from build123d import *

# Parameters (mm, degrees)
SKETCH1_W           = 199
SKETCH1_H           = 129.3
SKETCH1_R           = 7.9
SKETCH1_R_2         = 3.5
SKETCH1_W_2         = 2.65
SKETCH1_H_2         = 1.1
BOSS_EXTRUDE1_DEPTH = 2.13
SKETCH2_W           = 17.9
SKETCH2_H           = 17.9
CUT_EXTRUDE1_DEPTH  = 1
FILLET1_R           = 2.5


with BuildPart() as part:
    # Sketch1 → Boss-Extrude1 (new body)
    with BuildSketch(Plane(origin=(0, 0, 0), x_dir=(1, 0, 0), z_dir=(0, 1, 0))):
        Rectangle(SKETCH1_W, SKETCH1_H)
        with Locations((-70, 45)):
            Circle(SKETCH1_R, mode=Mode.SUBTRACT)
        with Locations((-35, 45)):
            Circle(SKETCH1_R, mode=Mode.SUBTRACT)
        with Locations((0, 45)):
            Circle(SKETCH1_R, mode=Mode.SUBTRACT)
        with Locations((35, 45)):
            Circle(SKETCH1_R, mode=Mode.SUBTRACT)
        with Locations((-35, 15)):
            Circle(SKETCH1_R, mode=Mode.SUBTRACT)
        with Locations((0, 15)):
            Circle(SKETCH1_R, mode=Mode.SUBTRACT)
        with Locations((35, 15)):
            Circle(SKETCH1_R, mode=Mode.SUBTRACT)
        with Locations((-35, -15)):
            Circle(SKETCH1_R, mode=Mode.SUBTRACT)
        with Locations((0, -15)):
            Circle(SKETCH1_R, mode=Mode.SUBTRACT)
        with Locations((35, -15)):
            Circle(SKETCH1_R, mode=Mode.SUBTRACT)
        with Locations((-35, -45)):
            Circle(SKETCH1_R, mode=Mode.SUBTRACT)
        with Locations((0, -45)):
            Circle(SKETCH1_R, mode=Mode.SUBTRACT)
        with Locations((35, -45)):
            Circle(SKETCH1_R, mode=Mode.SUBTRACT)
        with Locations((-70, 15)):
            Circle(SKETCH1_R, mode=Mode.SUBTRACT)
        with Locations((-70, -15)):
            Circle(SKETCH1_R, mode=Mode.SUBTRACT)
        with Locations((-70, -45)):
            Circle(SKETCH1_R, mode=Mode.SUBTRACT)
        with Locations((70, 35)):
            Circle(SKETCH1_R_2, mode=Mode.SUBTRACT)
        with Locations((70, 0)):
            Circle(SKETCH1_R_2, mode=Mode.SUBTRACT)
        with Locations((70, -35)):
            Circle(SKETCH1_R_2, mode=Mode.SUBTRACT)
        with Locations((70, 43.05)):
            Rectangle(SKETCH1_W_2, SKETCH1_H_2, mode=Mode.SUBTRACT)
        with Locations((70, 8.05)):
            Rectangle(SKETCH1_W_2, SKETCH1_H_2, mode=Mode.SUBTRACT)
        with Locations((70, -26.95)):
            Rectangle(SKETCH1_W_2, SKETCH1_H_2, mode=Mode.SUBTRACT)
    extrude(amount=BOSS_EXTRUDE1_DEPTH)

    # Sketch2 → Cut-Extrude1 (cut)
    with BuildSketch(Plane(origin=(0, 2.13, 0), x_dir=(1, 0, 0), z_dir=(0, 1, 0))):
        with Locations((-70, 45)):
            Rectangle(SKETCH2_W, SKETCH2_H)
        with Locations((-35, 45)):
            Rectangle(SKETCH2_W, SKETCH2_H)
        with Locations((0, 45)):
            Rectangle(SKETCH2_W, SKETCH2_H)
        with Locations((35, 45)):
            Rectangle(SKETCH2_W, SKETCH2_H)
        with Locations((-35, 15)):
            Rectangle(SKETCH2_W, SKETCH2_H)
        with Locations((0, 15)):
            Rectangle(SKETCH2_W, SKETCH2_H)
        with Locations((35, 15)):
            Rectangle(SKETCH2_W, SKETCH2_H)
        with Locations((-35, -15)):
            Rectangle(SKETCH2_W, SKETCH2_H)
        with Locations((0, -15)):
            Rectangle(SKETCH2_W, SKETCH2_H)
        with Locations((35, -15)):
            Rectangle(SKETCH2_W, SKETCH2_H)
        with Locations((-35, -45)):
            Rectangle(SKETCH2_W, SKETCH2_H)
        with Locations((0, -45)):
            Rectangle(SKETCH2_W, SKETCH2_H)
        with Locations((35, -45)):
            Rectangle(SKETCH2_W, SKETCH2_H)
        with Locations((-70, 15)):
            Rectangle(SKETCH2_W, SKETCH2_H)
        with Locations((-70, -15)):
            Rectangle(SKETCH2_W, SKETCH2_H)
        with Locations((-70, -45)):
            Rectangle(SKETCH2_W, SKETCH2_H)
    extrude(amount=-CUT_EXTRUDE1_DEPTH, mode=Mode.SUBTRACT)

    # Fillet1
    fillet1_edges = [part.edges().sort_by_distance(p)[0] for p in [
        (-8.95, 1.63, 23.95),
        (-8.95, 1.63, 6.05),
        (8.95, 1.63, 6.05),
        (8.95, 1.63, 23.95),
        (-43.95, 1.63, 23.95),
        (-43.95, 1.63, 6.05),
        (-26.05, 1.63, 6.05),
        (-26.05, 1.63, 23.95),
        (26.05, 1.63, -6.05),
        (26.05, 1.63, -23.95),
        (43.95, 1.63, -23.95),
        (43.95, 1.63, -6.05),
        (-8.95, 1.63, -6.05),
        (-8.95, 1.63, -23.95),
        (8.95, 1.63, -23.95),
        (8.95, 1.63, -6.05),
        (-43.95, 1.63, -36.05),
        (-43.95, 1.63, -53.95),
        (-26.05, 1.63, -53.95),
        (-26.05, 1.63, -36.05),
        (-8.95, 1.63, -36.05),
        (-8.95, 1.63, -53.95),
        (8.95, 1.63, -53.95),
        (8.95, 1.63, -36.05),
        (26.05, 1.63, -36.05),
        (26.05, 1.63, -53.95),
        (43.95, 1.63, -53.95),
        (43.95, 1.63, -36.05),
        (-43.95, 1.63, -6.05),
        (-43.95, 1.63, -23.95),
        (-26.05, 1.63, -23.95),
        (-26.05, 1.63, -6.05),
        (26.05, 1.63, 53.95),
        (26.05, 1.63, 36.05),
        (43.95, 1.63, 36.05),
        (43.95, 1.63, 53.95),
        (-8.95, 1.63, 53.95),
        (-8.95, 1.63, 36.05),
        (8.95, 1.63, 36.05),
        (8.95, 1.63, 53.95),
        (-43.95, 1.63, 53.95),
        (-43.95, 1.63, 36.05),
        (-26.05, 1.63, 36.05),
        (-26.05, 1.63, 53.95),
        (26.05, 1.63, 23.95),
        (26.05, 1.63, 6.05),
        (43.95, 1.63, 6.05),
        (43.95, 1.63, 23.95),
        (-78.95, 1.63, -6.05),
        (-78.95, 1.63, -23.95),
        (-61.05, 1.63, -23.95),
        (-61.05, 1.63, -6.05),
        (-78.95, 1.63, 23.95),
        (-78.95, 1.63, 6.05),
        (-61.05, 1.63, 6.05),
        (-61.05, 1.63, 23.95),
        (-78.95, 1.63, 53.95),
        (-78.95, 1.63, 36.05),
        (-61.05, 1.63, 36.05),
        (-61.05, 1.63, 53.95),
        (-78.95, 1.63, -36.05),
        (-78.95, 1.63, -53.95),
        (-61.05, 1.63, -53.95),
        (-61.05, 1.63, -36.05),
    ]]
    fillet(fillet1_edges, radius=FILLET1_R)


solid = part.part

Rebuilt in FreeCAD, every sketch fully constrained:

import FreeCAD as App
import Part
import Sketcher

V = App.Vector


def edges_at(feature, points):
    """Names of the edges that pass closest to the given points."""
    edges = feature.Shape.Edges
    near = lambda p: min(range(len(edges)), key=lambda i: edges[i].distToShape(Part.Vertex(*p))[0])
    return sorted({f"Edge{near(p) + 1}" for p in points})


def add_polygon(sketch, points):
    """Adds a closed chain of lines whose ends are joined by coincident constraints."""
    first, n = sketch.GeometryCount, len(points)
    for a, b in zip(points, points[1:] + points[:1]):
        sketch.addGeometry(Part.LineSegment(App.Vector(*a, 0), App.Vector(*b, 0)), False)
    for i in range(n):
        sketch.addConstraint(Sketcher.Constraint("Coincident", first + i, 2, first + (i + 1) % n, 1))

doc = App.newDocument("Part")
params = doc.addObject("Spreadsheet::Sheet", "Params")
for row, (alias, value) in enumerate([
    ("sketch1_diameter", "7 mm"),
    ("sketch1_diameter2", "15.8 mm"),
    ("sketch1_width", "199 mm"),
    ("sketch1_height", "129.3 mm"),
    ("sketch1_height2", "1.1 mm"),
    ("pad1_length", "2.13 mm"),
    ("sketch2_width", "17.9 mm"),
    ("pocket1_length", "1 mm"),
    ("fillet_radius", "2.5 mm"),
], start=1):
    params.set(f"A{row}", alias)
    params.set(f"B{row}", "=" + value)
    params.setAlias(f"B{row}", alias)

body = doc.addObject("PartDesign::Body", "Body")

# Sketch on XZ plane
sketch1 = body.newObject("Sketcher::SketchObject", "Sketch")
sketch1.AttachmentSupport = (doc.getObject("XZ_Plane"), [""])
sketch1.MapMode = "FlatFace"
add_polygon(sketch1, [(-99.5, -64.7), (-99.5, 64.7), (99.5, 64.7), (99.5, -64.7)])  # lines 0-3
sketch1.addGeometry(Part.Circle(V(-70, 45, 0), V(0, 0, 1), 7.9), False)  # 4
sketch1.addGeometry(Part.Circle(V(-35, 45, 0), V(0, 0, 1), 7.9), False)  # 5
sketch1.addGeometry(Part.Circle(V(-70, 15, 0), V(0, 0, 1), 7.9), False)  # 6
sketch1.addGeometry(Part.Circle(V(-35, 15, 0), V(0, 0, 1), 7.9), False)  # 7
sketch1.addGeometry(Part.Circle(V(0, 45, 0), V(0, 0, 1), 7.9), False)  # 8
sketch1.addGeometry(Part.Circle(V(35, 45, 0), V(0, 0, 1), 7.9), False)  # 9
sketch1.addGeometry(Part.Circle(V(70, 35, 0), V(0, 0, 1), 3.5), False)  # 10
add_polygon(sketch1, [(71.3, 27.5), (68.7, 27.5), (68.7, 26.4), (71.3, 26.4)])  # lines 11-14
sketch1.addGeometry(Part.Circle(V(0, 15, 0), V(0, 0, 1), 7.9), False)  # 15
sketch1.addGeometry(Part.Circle(V(35, 15, 0), V(0, 0, 1), 7.9), False)  # 16
sketch1.addGeometry(Part.Circle(V(-70, -15, 0), V(0, 0, 1), 7.9), False)  # 17
sketch1.addGeometry(Part.Circle(V(-35, -15, 0), V(0, 0, 1), 7.9), False)  # 18
sketch1.addGeometry(Part.Circle(V(-70, -45, 0), V(0, 0, 1), 7.9), False)  # 19
sketch1.addGeometry(Part.Circle(V(-35, -45, 0), V(0, 0, 1), 7.9), False)  # 20
sketch1.addGeometry(Part.Circle(V(0, -15, 0), V(0, 0, 1), 7.9), False)  # 21
sketch1.addGeometry(Part.Circle(V(35, -15, 0), V(0, 0, 1), 7.9), False)  # 22
sketch1.addGeometry(Part.Circle(V(70, 0, 0), V(0, 0, 1), 3.5), False)  # 23
add_polygon(sketch1, [(71.3, -7.5), (68.7, -7.5), (68.7, -8.6), (71.3, -8.6)])  # lines 24-27
sketch1.addGeometry(Part.Circle(V(0, -45, 0), V(0, 0, 1), 7.9), False)  # 28
sketch1.addGeometry(Part.Circle(V(35, -45, 0), V(0, 0, 1), 7.9), False)  # 29
sketch1.addGeometry(Part.Circle(V(70, -35, 0), V(0, 0, 1), 3.5), False)  # 30
add_polygon(sketch1, [(71.3, -42.5), (68.7, -42.5), (68.7, -43.6), (71.3, -43.6)])  # lines 31-34
sketch1.addConstraint([
    Sketcher.Constraint("Vertical", 0),
    Sketcher.Constraint("Horizontal", 1),
    Sketcher.Constraint("Vertical", 2),
    Sketcher.Constraint("Horizontal", 3),
    Sketcher.Constraint("Horizontal", 11),
    Sketcher.Constraint("Vertical", 12),
    Sketcher.Constraint("Horizontal", 13),
    Sketcher.Constraint("Vertical", 14),
    Sketcher.Constraint("Horizontal", 24),
    Sketcher.Constraint("Vertical", 25),
    Sketcher.Constraint("Horizontal", 26),
    Sketcher.Constraint("Vertical", 27),
    Sketcher.Constraint("Horizontal", 31),
    Sketcher.Constraint("Vertical", 32),
    Sketcher.Constraint("Horizontal", 33),
    Sketcher.Constraint("Vertical", 34),
    Sketcher.Constraint("Equal", 4, 5),
    Sketcher.Constraint("Equal", 5, 6),
    Sketcher.Constraint("Equal", 6, 7),
    Sketcher.Constraint("Equal", 7, 8),
    Sketcher.Constraint("Equal", 8, 9),
    Sketcher.Constraint("Equal", 9, 15),
    Sketcher.Constraint("Equal", 15, 16),
    Sketcher.Constraint("Equal", 16, 17),
    Sketcher.Constraint("Equal", 17, 18),
    Sketcher.Constraint("Equal", 18, 19),
    Sketcher.Constraint("Equal", 19, 20),
    Sketcher.Constraint("Equal", 20, 21),
    Sketcher.Constraint("Equal", 21, 22),
    Sketcher.Constraint("Equal", 10, 23),
    Sketcher.Constraint("Equal", 22, 28),
    Sketcher.Constraint("Equal", 28, 29),
    Sketcher.Constraint("Equal", 23, 30),
    Sketcher.Constraint("Symmetric", 16, 3, 18, 3, -1, 1),
    Sketcher.Constraint("Symmetric", 9, 3, 20, 3, -1, 1),
    Sketcher.Constraint("Symmetric", 15, 3, 21, 3, -1, 1),
    Sketcher.Constraint("Symmetric", 7, 3, 22, 3, -1, 1),
    Sketcher.Constraint("Symmetric", 8, 3, 28, 3, -1, 1),
    Sketcher.Constraint("Symmetric", 5, 3, 29, 3, -1, 1),
    Sketcher.Constraint("Symmetric", 0, 2, 2, 2, -1, 1),
    Sketcher.Constraint("Symmetric", 5, 3, 9, 3, -2),
    Sketcher.Constraint("Symmetric", 7, 3, 16, 3, -2),
    Sketcher.Constraint("Symmetric", 6, 3, 17, 3, -1),
    Sketcher.Constraint("Symmetric", 4, 3, 19, 3, -1),
    Sketcher.Constraint("Symmetric", 10, 3, 30, 3, -1),
    Sketcher.Constraint("PointOnObject", 8, 3, -2),
    Sketcher.Constraint("PointOnObject", 15, 3, -2),
    Sketcher.Constraint("PointOnObject", 23, 3, -1),
    Sketcher.Constraint("Horizontal", 4, 3, 5, 3),
    Sketcher.Constraint("Horizontal", 6, 3, 7, 3),
    Sketcher.Constraint("Horizontal", 5, 3, 8, 3),
    Sketcher.Constraint("Horizontal", 7, 3, 15, 3),
    Sketcher.Constraint("Vertical", 4, 3, 6, 3),
    Sketcher.Constraint("Vertical", 5, 3, 7, 3),
    Sketcher.Constraint("Vertical", 10, 3, 23, 3),
    Sketcher.Constraint("Vertical", 12, 2, 24, 2),
    Sketcher.Constraint("Vertical", 14, 2, 26, 2),
    Sketcher.Constraint("Vertical", 25, 2, 31, 2),
    Sketcher.Constraint("Vertical", 27, 2, 33, 2),
    Sketcher.Constraint("Equal", 14, 25),
    Sketcher.Constraint("Equal", 27, 32),
    Sketcher.Constraint("Diameter", 10, 7.0),
    Sketcher.Constraint("Diameter", 4, 15.8),
    Sketcher.Constraint("DistanceX", 1, 1, 1, 2, 199.0),
    Sketcher.Constraint("DistanceY", 0, 1, 0, 2, 129.3),
    Sketcher.Constraint("DistanceY", 12, 2, 12, 1, 1.1),
    Sketcher.Constraint("DistanceX", 4, 3, -1, 1, 70.0),
    Sketcher.Constraint("DistanceY", -1, 1, 4, 3, 45.0),
    Sketcher.Constraint("DistanceX", 5, 3, -1, 1, 35.0),
    Sketcher.Constraint("DistanceY", -1, 1, 6, 3, 15.0),
    Sketcher.Constraint("DistanceX", -1, 1, 10, 3, 70.0),
    Sketcher.Constraint("DistanceY", -1, 1, 10, 3, 35.0),
    Sketcher.Constraint("DistanceY", 25, 2, 12, 2, 35.0),
    Sketcher.Constraint("DistanceY", 31, 2, 24, 2, 35.0),
    Sketcher.Constraint("DistanceX", 11, 2, 11, 1, 2.65),
    Sketcher.Constraint("DistanceY", -1, 1, 11, 2, 27.5),
    Sketcher.Constraint("DistanceX", -1, 1, 11, 2, 68.675),
])
sketch1.setExpression("Constraints[77]", "Params.sketch1_diameter")
sketch1.setExpression("Constraints[78]", "Params.sketch1_diameter2")
sketch1.setExpression("Constraints[79]", "Params.sketch1_width")
sketch1.setExpression("Constraints[80]", "Params.sketch1_height")
sketch1.setExpression("Constraints[81]", "Params.sketch1_height2")
pad1 = body.newObject("PartDesign::Pad", "Pad")
pad1.Profile = sketch1
pad1.setExpression("Length", "Params.pad1_length")
pad1.Reversed = True

# Sketch on XZ plane
sketch2 = body.newObject("Sketcher::SketchObject", "Sketch001")
sketch2.AttachmentSupport = (doc.getObject("XZ_Plane"), [""])
sketch2.MapMode = "FlatFace"
sketch2.AttachmentOffset = App.Placement(V(0, 0, -2.13), App.Rotation())
add_polygon(sketch2, [(-79, -54), (-79, -36), (-61, -36), (-61, -54)])  # lines 0-3
add_polygon(sketch2, [(-44, -54), (-44, -36), (-26, -36), (-26, -54)])  # lines 4-7
add_polygon(sketch2, [(-9, -54), (-9, -36), (9, -36), (9, -54)])  # lines 8-11
add_polygon(sketch2, [(26, -54), (26, -36), (44, -36), (44, -54)])  # lines 12-15
add_polygon(sketch2, [(-44, -24), (-44, -6), (-26, -6), (-26, -24)])  # lines 16-19
add_polygon(sketch2, [(-9, -24), (-9, -6), (9, -6), (9, -24)])  # lines 20-23
add_polygon(sketch2, [(26, -24), (26, -6), (44, -6), (44, -24)])  # lines 24-27
add_polygon(sketch2, [(-44, 6), (-44, 24), (-26, 24), (-26, 6)])  # lines 28-31
add_polygon(sketch2, [(-9, 6), (-9, 24), (9, 24), (9, 6)])  # lines 32-35
add_polygon(sketch2, [(26, 6), (26, 24), (44, 24), (44, 6)])  # lines 36-39
add_polygon(sketch2, [(-44, 36), (-44, 54), (-26, 54), (-26, 36)])  # lines 40-43
add_polygon(sketch2, [(-9, 36), (-9, 54), (9, 54), (9, 36)])  # lines 44-47
add_polygon(sketch2, [(26, 36), (26, 54), (44, 54), (44, 36)])  # lines 48-51
add_polygon(sketch2, [(-79, -24), (-79, -6), (-61, -6), (-61, -24)])  # lines 52-55
add_polygon(sketch2, [(-79, 6), (-79, 24), (-61, 24), (-61, 6)])  # lines 56-59
add_polygon(sketch2, [(-79, 36), (-79, 54), (-61, 54), (-61, 36)])  # lines 60-63
sketch2.addConstraint([
    Sketcher.Constraint("Vertical", 0),
    Sketcher.Constraint("Horizontal", 1),
    Sketcher.Constraint("Vertical", 2),
    Sketcher.Constraint("Horizontal", 3),
    Sketcher.Constraint("Vertical", 4),
    Sketcher.Constraint("Horizontal", 5),
    Sketcher.Constraint("Vertical", 6),
    Sketcher.Constraint("Horizontal", 7),
    Sketcher.Constraint("Vertical", 8),
    Sketcher.Constraint("Horizontal", 9),
    Sketcher.Constraint("Vertical", 10),
    Sketcher.Constraint("Horizontal", 11),
    Sketcher.Constraint("Vertical", 12),
    Sketcher.Constraint("Horizontal", 13),
    Sketcher.Constraint("Vertical", 14),
    Sketcher.Constraint("Horizontal", 15),
    Sketcher.Constraint("Vertical", 16),
    Sketcher.Constraint("Horizontal", 17),
    Sketcher.Constraint("Vertical", 18),
    Sketcher.Constraint("Horizontal", 19),
    Sketcher.Constraint("Vertical", 20),
    Sketcher.Constraint("Horizontal", 21),
    Sketcher.Constraint("Vertical", 22),
    Sketcher.Constraint("Horizontal", 23),
    Sketcher.Constraint("Vertical", 24),
    Sketcher.Constraint("Horizontal", 25),
    Sketcher.Constraint("Vertical", 26),
    Sketcher.Constraint("Horizontal", 27),
    Sketcher.Constraint("Vertical", 28),
    Sketcher.Constraint("Horizontal", 29),
    Sketcher.Constraint("Vertical", 30),
    Sketcher.Constraint("Horizontal", 31),
    Sketcher.Constraint("Vertical", 32),
    Sketcher.Constraint("Horizontal", 33),
    Sketcher.Constraint("Vertical", 34),
    Sketcher.Constraint("Horizontal", 35),
    Sketcher.Constraint("Vertical", 36),
    Sketcher.Constraint("Horizontal", 37),
    Sketcher.Constraint("Vertical", 38),
    Sketcher.Constraint("Horizontal", 39),
    Sketcher.Constraint("Vertical", 40),
    Sketcher.Constraint("Horizontal", 41),
    Sketcher.Constraint("Vertical", 42),
    Sketcher.Constraint("Horizontal", 43),
    Sketcher.Constraint("Vertical", 44),
    Sketcher.Constraint("Horizontal", 45),
    Sketcher.Constraint("Vertical", 46),
    Sketcher.Constraint("Horizontal", 47),
    Sketcher.Constraint("Vertical", 48),
    Sketcher.Constraint("Horizontal", 49),
    Sketcher.Constraint("Vertical", 50),
    Sketcher.Constraint("Horizontal", 51),
    Sketcher.Constraint("Vertical", 52),
    Sketcher.Constraint("Horizontal", 53),
    Sketcher.Constraint("Vertical", 54),
    Sketcher.Constraint("Horizontal", 55),
    Sketcher.Constraint("Vertical", 56),
    Sketcher.Constraint("Horizontal", 57),
    Sketcher.Constraint("Vertical", 58),
    Sketcher.Constraint("Horizontal", 59),
    Sketcher.Constraint("Vertical", 60),
    Sketcher.Constraint("Horizontal", 61),
    Sketcher.Constraint("Vertical", 62),
    Sketcher.Constraint("Horizontal", 63),
    Sketcher.Constraint("Symmetric", 26, 2, 28, 2, -1, 1),
    Sketcher.Constraint("Symmetric", 24, 2, 30, 2, -1, 1),
    Sketcher.Constraint("Symmetric", 22, 2, 32, 2, -1, 1),
    Sketcher.Constraint("Symmetric", 20, 2, 34, 2, -1, 1),
    Sketcher.Constraint("Symmetric", 18, 2, 36, 2, -1, 1),
    Sketcher.Constraint("Symmetric", 16, 2, 38, 2, -1, 1),
    Sketcher.Constraint("Symmetric", 14, 2, 40, 2, -1, 1),
    Sketcher.Constraint("Symmetric", 12, 2, 42, 2, -1, 1),
    Sketcher.Constraint("Symmetric", 10, 2, 44, 2, -1, 1),
    Sketcher.Constraint("Symmetric", 8, 2, 46, 2, -1, 1),
    Sketcher.Constraint("Symmetric", 6, 2, 48, 2, -1, 1),
    Sketcher.Constraint("Symmetric", 4, 2, 50, 2, -1, 1),
    Sketcher.Constraint("Symmetric", 5, 2, 12, 2, -2),
    Sketcher.Constraint("Symmetric", 7, 2, 14, 2, -2),
    Sketcher.Constraint("Symmetric", 17, 2, 24, 2, -2),
    Sketcher.Constraint("Symmetric", 19, 2, 26, 2, -2),
    Sketcher.Constraint("Symmetric", 55, 2, 56, 2, -1),
    Sketcher.Constraint("Symmetric", 53, 2, 58, 2, -1),
    Sketcher.Constraint("Symmetric", 3, 2, 60, 2, -1),
    Sketcher.Constraint("Symmetric", 1, 2, 62, 2, -1),
    Sketcher.Constraint("Horizontal", 1, 2, 4, 2),
    Sketcher.Constraint("Horizontal", 3, 2, 6, 2),
    Sketcher.Constraint("Horizontal", 5, 2, 8, 2),
    Sketcher.Constraint("Horizontal", 7, 2, 10, 2),
    Sketcher.Constraint("Horizontal", 17, 2, 20, 2),
    Sketcher.Constraint("Horizontal", 19, 2, 22, 2),
    Sketcher.Constraint("Horizontal", 25, 2, 52, 2),
    Sketcher.Constraint("Horizontal", 27, 2, 54, 2),
    Sketcher.Constraint("Vertical", 7, 2, 16, 2),
    Sketcher.Constraint("Vertical", 6, 2, 17, 2),
    Sketcher.Constraint("Vertical", 11, 2, 20, 2),
    Sketcher.Constraint("Vertical", 10, 2, 21, 2),
    Sketcher.Constraint("Vertical", 23, 2, 32, 2),
    Sketcher.Constraint("Vertical", 3, 2, 52, 2),
    Sketcher.Constraint("Vertical", 2, 2, 53, 2),
    Sketcher.Constraint("Equal", 3, 5),
    Sketcher.Constraint("Equal", 7, 9),
    Sketcher.Constraint("Equal", 63, 0),
    Sketcher.Constraint("Equal", 14, 16),
    Sketcher.Constraint("DistanceX", 1, 1, 1, 2, 17.9),
    Sketcher.Constraint("DistanceX", 0, 2, -1, 1, 78.95),
    Sketcher.Constraint("DistanceY", 0, 2, -1, 1, 36.05),
    Sketcher.Constraint("DistanceX", 4, 2, -1, 1, 43.95),
    Sketcher.Constraint("DistanceY", 16, 2, -1, 1, 6.05),
])
sketch2.setExpression("Constraints[167]", "Params.sketch2_width")
pocket1 = body.newObject("PartDesign::Pocket", "Pocket")
pocket1.Profile = sketch2
pocket1.setExpression("Length", "Params.pocket1_length")
pocket1.Reversed = True
doc.recompute()

fillet = body.newObject("PartDesign::Fillet", "Fillet")
fillet.Base = (pocket1, edges_at(pocket1, [
    (-8.95, 1.63, 23.95),
    (-8.95, 1.63, 6.05),
    (8.95, 1.63, 6.05),
    (8.95, 1.63, 23.95),
    (-43.95, 1.63, 23.95),
    (-43.95, 1.63, 6.05),
    (-26.05, 1.63, 6.05),
    (-26.05, 1.63, 23.95),
    (26.05, 1.63, -6.05),
    (26.05, 1.63, -23.95),
    (43.95, 1.63, -23.95),
    (43.95, 1.63, -6.05),
    (-8.95, 1.63, -6.05),
    (-8.95, 1.63, -23.95),
    (8.95, 1.63, -23.95),
    (8.95, 1.63, -6.05),
    (-43.95, 1.63, -36.05),
    (-43.95, 1.63, -53.95),
    (-26.05, 1.63, -53.95),
    (-26.05, 1.63, -36.05),
    (-8.95, 1.63, -36.05),
    (-8.95, 1.63, -53.95),
    (8.95, 1.63, -53.95),
    (8.95, 1.63, -36.05),
    (26.05, 1.63, -36.05),
    (26.05, 1.63, -53.95),
    (43.95, 1.63, -53.95),
    (43.95, 1.63, -36.05),
    (-43.95, 1.63, -6.05),
    (-43.95, 1.63, -23.95),
    (-26.05, 1.63, -23.95),
    (-26.05, 1.63, -6.05),
    (26.05, 1.63, 53.95),
    (26.05, 1.63, 36.05),
    (43.95, 1.63, 36.05),
    (43.95, 1.63, 53.95),
    (-8.95, 1.63, 53.95),
    (-8.95, 1.63, 36.05),
    (8.95, 1.63, 36.05),
    (8.95, 1.63, 53.95),
    (-43.95, 1.63, 53.95),
    (-43.95, 1.63, 36.05),
    (-26.05, 1.63, 36.05),
    (-26.05, 1.63, 53.95),
    (26.05, 1.63, 23.95),
    (26.05, 1.63, 6.05),
    (43.95, 1.63, 6.05),
    (43.95, 1.63, 23.95),
    (-78.95, 1.63, -6.05),
    (-78.95, 1.63, -23.95),
    (-61.05, 1.63, -23.95),
    (-61.05, 1.63, -6.05),
    (-78.95, 1.63, 23.95),
    (-78.95, 1.63, 6.05),
    (-61.05, 1.63, 6.05),
    (-61.05, 1.63, 23.95),
    (-78.95, 1.63, 53.95),
    (-78.95, 1.63, 36.05),
    (-61.05, 1.63, 36.05),
    (-61.05, 1.63, 53.95),
    (-78.95, 1.63, -36.05),
    (-78.95, 1.63, -53.95),
    (-61.05, 1.63, -53.95),
    (-61.05, 1.63, -36.05),
]))
fillet.setExpression("Radius", "Params.fillet_radius")

doc.recompute()
